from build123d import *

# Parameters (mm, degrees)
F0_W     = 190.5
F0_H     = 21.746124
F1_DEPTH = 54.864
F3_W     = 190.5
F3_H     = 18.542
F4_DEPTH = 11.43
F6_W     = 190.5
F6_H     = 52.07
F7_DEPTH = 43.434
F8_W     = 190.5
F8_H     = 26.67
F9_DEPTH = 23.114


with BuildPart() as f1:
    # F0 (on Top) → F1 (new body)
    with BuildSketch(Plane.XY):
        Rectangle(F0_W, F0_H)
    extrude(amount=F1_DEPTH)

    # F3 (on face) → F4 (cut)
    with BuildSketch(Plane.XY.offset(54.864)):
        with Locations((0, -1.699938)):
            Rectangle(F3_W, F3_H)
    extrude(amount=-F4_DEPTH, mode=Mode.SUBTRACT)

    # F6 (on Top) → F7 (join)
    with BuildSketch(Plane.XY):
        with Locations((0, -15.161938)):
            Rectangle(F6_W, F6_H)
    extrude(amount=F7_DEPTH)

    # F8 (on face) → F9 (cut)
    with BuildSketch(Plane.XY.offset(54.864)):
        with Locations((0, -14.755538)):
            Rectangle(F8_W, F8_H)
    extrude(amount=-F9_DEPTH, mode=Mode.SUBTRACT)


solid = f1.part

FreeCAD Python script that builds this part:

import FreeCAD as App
import Part
import Sketcher

V = App.Vector
Q = App.Units.Quantity


def add_polygon(sketch, points):
    """Adds a closed chain of lines whose ends are joined by coincident constraints."""
    first, n = sketch.GeometryCount, len(points)
    for a, b in zip(points, points[1:] + points[:1]):
        sketch.addGeometry(Part.LineSegment(App.Vector(*a, 0), App.Vector(*b, 0)), False)
    for i in range(n):
        sketch.addConstraint(Sketcher.Constraint("Coincident", first + i, 2, first + (i + 1) % n, 1))

doc = App.newDocument("Part")
body = doc.addObject("PartDesign::Body", "Body")

# Sketch on XY plane
sketch1 = body.newObject("Sketcher::SketchObject", "Sketch")
sketch1.AttachmentSupport = (doc.getObject("XY_Plane"), [""])
sketch1.MapMode = "FlatFace"
add_polygon(sketch1, [(-95, 11), (-95, -11), (95, -11), (95, 11)])  # lines 0-3
sketch1.addConstraint([
    Sketcher.Constraint("Vertical", 0),
    Sketcher.Constraint("Horizontal", 1),
    Sketcher.Constraint("Vertical", 2),
    Sketcher.Constraint("Horizontal", 3),
    Sketcher.Constraint("Symmetric", 0, 2, 2, 2, -1, 1),
    Sketcher.Constraint("DistanceX", 1, 1, 1, 2, Q("7.5 in")),
    Sketcher.Constraint("DistanceY", 0, 2, 0, 1, Q("21.746124 mm")),
])
pad1 = body.newObject("PartDesign::Pad", "Pad")
pad1.Profile = sketch1
pad1.Length = Q("2.16 in")

# Sketch on XY plane
sketch2 = body.newObject("Sketcher::SketchObject", "Sketch001")
sketch2.AttachmentSupport = (doc.getObject("XY_Plane"), [""])
sketch2.MapMode = "FlatFace"
sketch2.AttachmentOffset = App.Placement(V(0, 0, 2.16 * 25.4), App.Rotation())
add_polygon(sketch2, [(-95, 8), (-95, -11), (95, -11), (95, 8)])  # lines 0-3
sketch2.addConstraint([
    Sketcher.Constraint("Vertical", 0),
    Sketcher.Constraint("Horizontal", 1),
    Sketcher.Constraint("Vertical", 2),
    Sketcher.Constraint("Horizontal", 3),
    Sketcher.Constraint("DistanceX", 1, 1, 1, 2, Q("7.5 in")),
    Sketcher.Constraint("DistanceY", 0, 2, 0, 1, Q("0.73 in")),
    Sketcher.Constraint("DistanceX", 0, 2, -1, 1, Q("3.75 in")),
    Sketcher.Constraint("DistanceY", 0, 2, -1, 1, Q("10.970938 mm")),
])
pocket1 = body.newObject("PartDesign::Pocket", "Pocket")
pocket1.Profile = sketch2
pocket1.Length = Q("0.45 in")

# Sketch on XY plane
sketch3 = body.newObject("Sketcher::SketchObject", "Sketch002")
sketch3.AttachmentSupport = (doc.getObject("XY_Plane"), [""])
sketch3.MapMode = "FlatFace"
add_polygon(sketch3, [(-95, 11), (-95, -41), (95, -41), (95, 11)])  # lines 0-3
sketch3.addConstraint([
    Sketcher.Constraint("Vertical", 0),
    Sketcher.Constraint("Horizontal", 1),
    Sketcher.Constraint("Vertical", 2),
    Sketcher.Constraint("Horizontal", 3),
    Sketcher.Constraint("DistanceX", 1, 1, 1, 2, Q("7.5 in")),
    Sketcher.Constraint("DistanceY", 0, 2, 0, 1, Q("2.05 in")),
    Sketcher.Constraint("DistanceX", 0, 2, -1, 1, Q("3.75 in")),
    Sketcher.Constraint("DistanceY", 0, 2, -1, 1, Q("41.196938 mm")),
])
pad2 = body.newObject("PartDesign::Pad", "Pad001")
pad2.Profile = sketch3
pad2.Length = Q("1.71 in")

# Sketch on XY plane
sketch4 = body.newObject("Sketcher::SketchObject", "Sketch003")
sketch4.AttachmentSupport = (doc.getObject("XY_Plane"), [""])
sketch4.MapMode = "FlatFace"
sketch4.AttachmentOffset = App.Placement(V(0, 0, 2.16 * 25.4), App.Rotation())
add_polygon(sketch4, [(-95, -1), (-95, -28), (95, -28), (95, -1)])  # lines 0-3
sketch4.addConstraint([
    Sketcher.Constraint("Vertical", 0),
    Sketcher.Constraint("Horizontal", 1),
    Sketcher.Constraint("Vertical", 2),
    Sketcher.Constraint("Horizontal", 3),
    Sketcher.Constraint("DistanceX", 1, 1, 1, 2, Q("7.5 in")),
    Sketcher.Constraint("DistanceY", 0, 2, 0, 1, Q("1.05 in")),
    Sketcher.Constraint("DistanceX", 0, 2, -1, 1, Q("3.75 in")),
    Sketcher.Constraint("DistanceY", 2, 2, -1, 1, Q("1.420538 mm")),
])
pocket2 = body.newObject("PartDesign::Pocket", "Pocket001")
pocket2.Profile = sketch4
pocket2.Length = Q("0.91 in")

doc.recompute()
